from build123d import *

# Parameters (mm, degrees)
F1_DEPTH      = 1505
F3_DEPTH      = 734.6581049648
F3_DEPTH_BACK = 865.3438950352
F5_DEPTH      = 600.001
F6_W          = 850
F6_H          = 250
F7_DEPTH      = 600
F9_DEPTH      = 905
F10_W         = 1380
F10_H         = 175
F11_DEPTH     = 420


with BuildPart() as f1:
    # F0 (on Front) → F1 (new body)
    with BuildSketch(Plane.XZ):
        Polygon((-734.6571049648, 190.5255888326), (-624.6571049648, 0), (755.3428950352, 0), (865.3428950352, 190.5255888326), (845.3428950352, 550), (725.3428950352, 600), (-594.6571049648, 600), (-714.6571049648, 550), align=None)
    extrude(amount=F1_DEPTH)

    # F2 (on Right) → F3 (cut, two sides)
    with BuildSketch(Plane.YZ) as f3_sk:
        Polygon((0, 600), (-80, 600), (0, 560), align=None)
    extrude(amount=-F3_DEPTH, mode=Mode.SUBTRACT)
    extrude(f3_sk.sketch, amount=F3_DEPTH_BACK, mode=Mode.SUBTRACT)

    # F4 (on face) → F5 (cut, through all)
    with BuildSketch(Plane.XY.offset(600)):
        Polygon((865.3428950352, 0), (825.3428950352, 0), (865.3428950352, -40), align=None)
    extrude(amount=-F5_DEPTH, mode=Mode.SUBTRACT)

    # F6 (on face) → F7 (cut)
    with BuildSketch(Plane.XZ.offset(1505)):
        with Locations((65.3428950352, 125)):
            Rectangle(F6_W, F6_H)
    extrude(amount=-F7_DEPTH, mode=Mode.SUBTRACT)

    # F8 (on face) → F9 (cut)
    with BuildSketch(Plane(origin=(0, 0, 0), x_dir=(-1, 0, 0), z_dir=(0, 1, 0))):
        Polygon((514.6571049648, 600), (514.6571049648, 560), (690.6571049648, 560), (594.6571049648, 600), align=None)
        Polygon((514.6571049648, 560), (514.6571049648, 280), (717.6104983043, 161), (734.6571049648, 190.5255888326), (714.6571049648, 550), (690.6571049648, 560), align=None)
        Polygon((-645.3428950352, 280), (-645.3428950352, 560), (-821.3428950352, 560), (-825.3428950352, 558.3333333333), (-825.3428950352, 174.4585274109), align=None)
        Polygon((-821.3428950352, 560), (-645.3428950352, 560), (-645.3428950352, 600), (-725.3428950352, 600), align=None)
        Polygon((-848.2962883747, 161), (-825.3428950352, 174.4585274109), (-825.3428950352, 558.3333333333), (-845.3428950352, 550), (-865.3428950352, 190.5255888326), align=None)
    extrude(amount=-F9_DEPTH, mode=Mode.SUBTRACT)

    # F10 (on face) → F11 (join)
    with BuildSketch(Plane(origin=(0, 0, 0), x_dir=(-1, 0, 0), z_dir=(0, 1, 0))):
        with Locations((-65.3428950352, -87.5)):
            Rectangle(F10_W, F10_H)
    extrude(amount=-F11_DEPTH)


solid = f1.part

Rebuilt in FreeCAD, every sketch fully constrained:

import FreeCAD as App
import Part
import Sketcher
from FreeCAD import Vector
Q = App.Units.Quantity

doc = App.newDocument("Part")
body = doc.addObject("PartDesign::Body", "Body")

# Sketch on XZ plane
sketch1 = body.newObject("Sketcher::SketchObject", "Sketch")
sketch1.AttachmentSupport = (doc.getObject("XZ_Plane"), [""])
sketch1.MapMode = "FlatFace"
sketch1.addGeometry([
    Part.LineSegment(Vector(-735, 191, 0), Vector(-625, 0, 0)),  # 0
    Part.LineSegment(Vector(-625, 0, 0), Vector(755, 0, 0)),  # 1
    Part.LineSegment(Vector(755, 0, 0), Vector(865, 191, 0)),  # 2
    Part.LineSegment(Vector(865, 191, 0), Vector(845, 550, 0)),  # 3
    Part.LineSegment(Vector(845, 550, 0), Vector(725, 600, 0)),  # 4
    Part.LineSegment(Vector(725, 600, 0), Vector(-595, 600, 0)),  # 5
    Part.LineSegment(Vector(-595, 600, 0), Vector(-715, 550, 0)),  # 6
    Part.LineSegment(Vector(-715, 550, 0), Vector(-735, 191, 0)),  # 7
], False)
sketch1.addConstraint([
    Sketcher.Constraint("Coincident", 0, 2, 1, 1),
    Sketcher.Constraint("Coincident", 1, 2, 2, 1),
    Sketcher.Constraint("Coincident", 2, 2, 3, 1),
    Sketcher.Constraint("Coincident", 3, 2, 4, 1),
    Sketcher.Constraint("Coincident", 4, 2, 5, 1),
    Sketcher.Constraint("Coincident", 5, 2, 6, 1),
    Sketcher.Constraint("Coincident", 6, 2, 7, 1),
    Sketcher.Constraint("Coincident", 7, 2, 0, 1),
    Sketcher.Constraint("Horizontal", 1),
    Sketcher.Constraint("Horizontal", 5),
    Sketcher.Constraint("PointOnObject", 0, 2, -1),
    Sketcher.Constraint("Horizontal", 3, 2, 6, 2),
    Sketcher.Constraint("Horizontal", 2, 2, 7, 2),
    Sketcher.Constraint("Equal", 0, 2),
    Sketcher.Constraint("Equal", 4, 6),
    Sketcher.Constraint("Equal", 3, 7),
    Sketcher.Constraint("DistanceX", 1, 1, 1, 2, Q("1380 mm")),
    Sketcher.Constraint("DistanceX", 5, 2, 5, 1, Q("1320 mm")),
    Sketcher.Constraint("Angle", 0, Q("-60 deg")),
    Sketcher.Constraint("Distance", 0, Q("220 mm")),
    Sketcher.Constraint("Distance", 4, Q("130 mm")),
    Sketcher.Constraint("DistanceY", -1, 1, 3, 2, Q("550 mm")),
    Sketcher.Constraint("DistanceY", -1, 1, 4, 2, Q("600 mm")),
    Sketcher.Constraint("DistanceX", 0, 2, -1, 1, Q("624.657105 mm")),
])
pad1 = body.newObject("PartDesign::Pad", "Pad")
pad1.Profile = sketch1
pad1.Length = 1505

# Sketch on YZ plane
sketch2 = body.newObject("Sketcher::SketchObject", "Sketch001")
sketch2.AttachmentSupport = (doc.getObject("YZ_Plane"), [""])
sketch2.MapMode = "FlatFace"
sketch2.addGeometry([
    Part.LineSegment(Vector(0, 600, 0), Vector(-80, 600, 0)),
    Part.LineSegment(Vector(-80, 600, 0), Vector(0, 560, 0)),
    Part.LineSegment(Vector(0, 560, 0), Vector(0, 600, 0)),
], False)
sketch2.addConstraint([
    Sketcher.Constraint("Coincident", 0, 2, 1, 1),
    Sketcher.Constraint("Coincident", 1, 2, 2, 1),
    Sketcher.Constraint("Coincident", 2, 2, 0, 1),
    Sketcher.Constraint("Horizontal", 0),
    Sketcher.Constraint("Vertical", 2),
    Sketcher.Constraint("PointOnObject", 1, 2, -2),
    Sketcher.Constraint("DistanceX", 0, 2, 0, 1, Q("80 mm")),
    Sketcher.Constraint("DistanceY", 2, 1, 2, 2, Q("40 mm")),
    Sketcher.Constraint("DistanceY", -1, 1, 0, 2, Q("600 mm")),
])
pocket1 = body.newObject("PartDesign::Pocket", "Pocket")
pocket1.Profile = sketch2
pocket1.Type = "ThroughAll"
pocket1.Midplane = True

# Sketch on XY plane
sketch3 = body.newObject("Sketcher::SketchObject", "Sketch002")
sketch3.AttachmentSupport = (doc.getObject("XY_Plane"), [""])
sketch3.MapMode = "FlatFace"
sketch3.AttachmentOffset = App.Placement(Vector(0, 0, 600), App.Rotation())
sketch3.addGeometry([
    Part.LineSegment(Vector(865, 0, 0), Vector(825, 0, 0)),
    Part.LineSegment(Vector(825, 0, 0), Vector(865, -40, 0)),
    Part.LineSegment(Vector(865, -40, 0), Vector(865, 0, 0)),
], False)
sketch3.addConstraint([
    Sketcher.Constraint("Coincident", 0, 2, 1, 1),
    Sketcher.Constraint("Coincident", 1, 2, 2, 1),
    Sketcher.Constraint("Coincident", 2, 2, 0, 1),
    Sketcher.Constraint("Horizontal", 0),
    Sketcher.Constraint("Vertical", 2),
    Sketcher.Constraint("PointOnObject", 0, 2, -1),
    Sketcher.Constraint("Equal", 0, 2),
    Sketcher.Constraint("DistanceX", 0, 2, 0, 1, Q("40 mm")),
    Sketcher.Constraint("DistanceX", -1, 1, 0, 2, Q("825.342895 mm")),
])
pocket2 = body.newObject("PartDesign::Pocket", "Pocket001")
pocket2.Profile = sketch3
pocket2.Type = "ThroughAll"

# Sketch on XZ plane
sketch4 = body.newObject("Sketcher::SketchObject", "Sketch003")
sketch4.AttachmentSupport = (doc.getObject("XZ_Plane"), [""])
sketch4.MapMode = "FlatFace"
sketch4.AttachmentOffset = App.Placement(Vector(0, 0, 1505), App.Rotation())
sketch4.addGeometry([
    Part.LineSegment(Vector(-360, 250, 0), Vector(-360, 0, 0)),
    Part.LineSegment(Vector(-360, 0, 0), Vector(490, 0, 0)),
    Part.LineSegment(Vector(490, 0, 0), Vector(490, 250, 0)),
    Part.LineSegment(Vector(490, 250, 0), Vector(-360, 250, 0)),
], False)
sketch4.addConstraint([
    Sketcher.Constraint("Coincident", 0, 2, 1, 1),
    Sketcher.Constraint("Coincident", 1, 2, 2, 1),
    Sketcher.Constraint("Coincident", 2, 2, 3, 1),
    Sketcher.Constraint("Coincident", 3, 2, 0, 1),
    Sketcher.Constraint("Vertical", 0),
    Sketcher.Constraint("Horizontal", 1),
    Sketcher.Constraint("Vertical", 2),
    Sketcher.Constraint("Horizontal", 3),
    Sketcher.Constraint("PointOnObject", 0, 2, -1),
    Sketcher.Constraint("DistanceX", 1, 1, 1, 2, Q("850 mm")),
    Sketcher.Constraint("DistanceY", 0, 2, 0, 1, Q("250 mm")),
    Sketcher.Constraint("DistanceX", 0, 2, -1, 1, Q("359.657105 mm")),
])
pocket3 = body.newObject("PartDesign::Pocket", "Pocket002")
pocket3.Profile = sketch4
pocket3.Length = 600

# Sketch on XZ plane
sketch5 = body.newObject("Sketcher::SketchObject", "Sketch004")
sketch5.AttachmentSupport = (doc.getObject("XZ_Plane"), [""])
sketch5.MapMode = "FlatFace"
sketch5.addGeometry([
    Part.LineSegment(Vector(-514.7, 600, 0), Vector(-514.7, 280, 0)),  # 0
    Part.LineSegment(Vector(-514.7, 280, 0), Vector(-717.6, 161, 0)),  # 1
    Part.LineSegment(Vector(-717.6, 161, 0), Vector(-734.7, 190.5, 0)),  # 2
    Part.LineSegment(Vector(-734.7, 190.5, 0), Vector(-714.7, 550, 0)),  # 3
    Part.LineSegment(Vector(-714.7, 550, 0), Vector(-594.7, 600, 0)),  # 4
    Part.LineSegment(Vector(-594.7, 600, 0), Vector(-514.7, 600, 0)),  # 5
    Part.LineSegment(Vector(645.3, 280, 0), Vector(645.3, 600, 0)),  # 6
    Part.LineSegment(Vector(645.3, 600, 0), Vector(725.3, 600, 0)),  # 7
    Part.LineSegment(Vector(725.3, 600, 0), Vector(821.3, 560, 0)),  # 8
    Part.LineSegment(Vector(821.3, 560, 0), Vector(825.3, 558.3, 0)),  # 9
    Part.LineSegment(Vector(825.3, 558.3, 0), Vector(845.3, 550, 0)),  # 10
    Part.LineSegment(Vector(845.3, 550, 0), Vector(865.3, 190.5, 0)),  # 11
    Part.LineSegment(Vector(865.3, 190.5, 0), Vector(848.3, 161, 0)),  # 12
    Part.LineSegment(Vector(848.3, 161, 0), Vector(825.3, 174.5, 0)),  # 13
    Part.LineSegment(Vector(825.3, 174.5, 0), Vector(645.3, 280, 0)),  # 14
], False)
sketch5.addConstraint([
    Sketcher.Constraint("Coincident", 0, 2, 1, 1),
    Sketcher.Constraint("Coincident", 1, 2, 2, 1),
    Sketcher.Constraint("Coincident", 2, 2, 3, 1),
    Sketcher.Constraint("Coincident", 3, 2, 4, 1),
    Sketcher.Constraint("Coincident", 4, 2, 5, 1),
    Sketcher.Constraint("Coincident", 5, 2, 0, 1),
    Sketcher.Constraint("Coincident", 6, 2, 7, 1),
    Sketcher.Constraint("Coincident", 7, 2, 8, 1),
    Sketcher.Constraint("Coincident", 8, 2, 9, 1),
    Sketcher.Constraint("Coincident", 9, 2, 10, 1),
    Sketcher.Constraint("Coincident", 10, 2, 11, 1),
    Sketcher.Constraint("Coincident", 11, 2, 12, 1),
    Sketcher.Constraint("Coincident", 12, 2, 13, 1),
    Sketcher.Constraint("Coincident", 13, 2, 14, 1),
    Sketcher.Constraint("Coincident", 14, 2, 6, 1),
    Sketcher.Constraint("Vertical", 0),
    Sketcher.Constraint("Horizontal", 5),
    Sketcher.Constraint("Vertical", 6),
    Sketcher.Constraint("Horizontal", 7),
    Sketcher.Constraint("Parallel", 8, 9),
    Sketcher.Constraint("Parallel", 9, 10),
    Sketcher.Constraint("Parallel", 13, 14),
    Sketcher.Constraint("Horizontal", 5, 2, 6, 2),
    Sketcher.Constraint("Horizontal", 3, 2, 10, 2),
    Sketcher.Constraint("Horizontal", 2, 2, 11, 2),
    Sketcher.Constraint("Horizontal", 1, 2, 12, 2),
    Sketcher.Constraint("Horizontal", 0, 2, 14, 2),
    Sketcher.Constraint("Vertical", 9, 2, 13, 2),
    Sketcher.Constraint("Equal", 5, 7),
    Sketcher.Constraint("Equal", 3, 11),
    Sketcher.Constraint("Equal", 2, 12),
    Sketcher.Constraint("DistanceX", 5, 1, 5, 2, Q("80 mm")),
    Sketcher.Constraint("DistanceY", 0, 2, 0, 1, Q("320 mm")),
    Sketcher.Constraint("Angle", 2, Q("120 deg")),
    Sketcher.Constraint("Distance", 4, Q("130 mm")),
    Sketcher.Constraint("Distance", 8, Q("104 mm")),
    Sketcher.Constraint("DistanceY", -1, 1, 0, 2, Q("280 mm")),
    Sketcher.Constraint("DistanceY", -1, 1, 1, 2, Q("161 mm")),
    Sketcher.Constraint("DistanceY", -1, 1, 3, 2, Q("550 mm")),
    Sketcher.Constraint("DistanceY", -1, 1, 8, 2, Q("560 mm")),
    Sketcher.Constraint("DistanceX", 2, 2, 0, 2, Q("220 mm")),
    Sketcher.Constraint("DistanceX", 5, 2, 6, 2, Q("1160 mm")),
    Sketcher.Constraint("DistanceX", 8, 2, 9, 2, Q("4 mm")),
    Sketcher.Constraint("DistanceX", 1, 2, -1, 1, Q("717.610498 mm")),
    Sketcher.Constraint("Distance", 3, Q("360.030349 mm")),
])
pocket4 = body.newObject("PartDesign::Pocket", "Pocket003")
pocket4.Profile = sketch5
pocket4.Length = 905
pocket4.Reversed = True

# Sketch on XZ plane
sketch6 = body.newObject("Sketcher::SketchObject", "Sketch005")
sketch6.AttachmentSupport = (doc.getObject("XZ_Plane"), [""])
sketch6.MapMode = "FlatFace"
sketch6.addGeometry([
    Part.LineSegment(Vector(755, 0, 0), Vector(755, -175, 0)),
    Part.LineSegment(Vector(755, -175, 0), Vector(-625, -175, 0)),
    Part.LineSegment(Vector(-625, -175, 0), Vector(-625, 0, 0)),
    Part.LineSegment(Vector(-625, 0, 0), Vector(755, 0, 0)),
], False)
sketch6.addConstraint([
    Sketcher.Constraint("Coincident", 0, 2, 1, 1),
    Sketcher.Constraint("Coincident", 1, 2, 2, 1),
    Sketcher.Constraint("Coincident", 2, 2, 3, 1),
    Sketcher.Constraint("Coincident", 3, 2, 0, 1),
    Sketcher.Constraint("Vertical", 0),
    Sketcher.Constraint("Horizontal", 1),
    Sketcher.Constraint("Vertical", 2),
    Sketcher.Constraint("Horizontal", 3),
    Sketcher.Constraint("PointOnObject", 2, 2, -1),
    Sketcher.Constraint("DistanceX", 1, 2, 1, 1, Q("1380 mm")),
    Sketcher.Constraint("DistanceY", 0, 2, 0, 1, Q("175 mm")),
    Sketcher.Constraint("DistanceX", -1, 1, 0, 2, Q("755.342895 mm")),
])
pad2 = body.newObject("PartDesign::Pad", "Pad001")
pad2.Profile = sketch6
pad2.Length = 420

doc.recompute()
